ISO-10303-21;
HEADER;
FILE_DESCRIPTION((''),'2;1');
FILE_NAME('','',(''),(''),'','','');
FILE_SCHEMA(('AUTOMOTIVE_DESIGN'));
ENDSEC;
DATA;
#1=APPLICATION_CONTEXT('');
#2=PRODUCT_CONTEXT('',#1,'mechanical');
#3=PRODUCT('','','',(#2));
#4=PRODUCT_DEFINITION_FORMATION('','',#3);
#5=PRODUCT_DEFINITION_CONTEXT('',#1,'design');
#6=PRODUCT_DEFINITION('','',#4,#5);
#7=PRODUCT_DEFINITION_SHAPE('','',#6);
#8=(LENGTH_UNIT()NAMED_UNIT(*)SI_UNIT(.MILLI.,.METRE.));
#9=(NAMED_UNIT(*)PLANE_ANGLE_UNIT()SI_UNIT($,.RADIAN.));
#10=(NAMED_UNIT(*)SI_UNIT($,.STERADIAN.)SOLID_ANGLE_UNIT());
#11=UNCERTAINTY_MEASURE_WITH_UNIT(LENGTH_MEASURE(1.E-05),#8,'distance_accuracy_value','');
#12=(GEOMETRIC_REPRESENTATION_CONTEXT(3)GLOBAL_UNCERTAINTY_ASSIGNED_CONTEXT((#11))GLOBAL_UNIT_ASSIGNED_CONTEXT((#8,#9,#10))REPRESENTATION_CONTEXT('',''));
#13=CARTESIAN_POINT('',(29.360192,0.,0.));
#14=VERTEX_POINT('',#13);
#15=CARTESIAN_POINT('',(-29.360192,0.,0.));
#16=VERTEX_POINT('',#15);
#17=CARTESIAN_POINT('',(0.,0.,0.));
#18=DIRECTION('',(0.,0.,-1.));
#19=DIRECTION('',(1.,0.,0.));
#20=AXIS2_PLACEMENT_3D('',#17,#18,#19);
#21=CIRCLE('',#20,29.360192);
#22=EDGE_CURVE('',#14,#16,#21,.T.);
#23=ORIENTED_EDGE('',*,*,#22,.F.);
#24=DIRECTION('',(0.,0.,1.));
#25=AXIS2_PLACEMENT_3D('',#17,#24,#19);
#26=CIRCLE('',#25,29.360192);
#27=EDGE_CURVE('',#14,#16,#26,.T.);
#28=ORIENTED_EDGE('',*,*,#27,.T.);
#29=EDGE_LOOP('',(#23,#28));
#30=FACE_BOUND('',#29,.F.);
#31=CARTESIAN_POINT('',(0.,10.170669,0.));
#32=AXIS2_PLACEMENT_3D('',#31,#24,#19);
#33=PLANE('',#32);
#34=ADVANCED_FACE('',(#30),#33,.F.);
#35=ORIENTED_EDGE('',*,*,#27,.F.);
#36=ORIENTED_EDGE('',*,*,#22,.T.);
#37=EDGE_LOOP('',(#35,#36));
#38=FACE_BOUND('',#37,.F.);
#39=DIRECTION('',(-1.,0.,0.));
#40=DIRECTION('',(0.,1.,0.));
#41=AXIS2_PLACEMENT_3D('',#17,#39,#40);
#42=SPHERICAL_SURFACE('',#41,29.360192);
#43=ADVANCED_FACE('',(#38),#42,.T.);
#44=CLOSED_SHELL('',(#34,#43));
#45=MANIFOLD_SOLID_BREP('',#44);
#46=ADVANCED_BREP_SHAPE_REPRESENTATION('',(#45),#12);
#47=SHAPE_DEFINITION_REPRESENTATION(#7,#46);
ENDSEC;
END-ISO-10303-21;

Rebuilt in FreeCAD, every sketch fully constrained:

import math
import FreeCAD as App
import Part
import Sketcher
from FreeCAD import Vector

doc = App.newDocument("Part")
body = doc.addObject("PartDesign::Body", "Body")

sketch1 = body.newObject("Sketcher::SketchObject", "Sketch")
sketch1.AttachmentSupport = (doc.getObject("XY_Plane"), [""])
sketch1.MapMode = "FlatFace"
sketch1.addGeometry([
    Part.ArcOfCircle(Part.Circle(Vector(0, 0, 0), Vector(0, 0, 1), 29), math.radians(0), math.radians(180)),
    Part.LineSegment(Vector(-29, 0, 0), Vector(29, 0, 0)),
], False)
sketch1.addConstraint([
    Sketcher.Constraint("Coincident", 0, 1, 1, 2),
    Sketcher.Constraint("Coincident", 1, 1, 0, 2),
    Sketcher.Constraint("Horizontal", 1),
    Sketcher.Constraint("Coincident", 0, 3, -1, 1),
    Sketcher.Constraint("PointOnObject", 0, 1, -1),
    Sketcher.Constraint("Radius", 0, 29.360192),
])
revolution = body.newObject("PartDesign::Revolution", "Revolution")
revolution.Profile = sketch1
revolution.ReferenceAxis = (sketch1, ["H_Axis"])
revolution.Angle = 180

doc.recompute()
